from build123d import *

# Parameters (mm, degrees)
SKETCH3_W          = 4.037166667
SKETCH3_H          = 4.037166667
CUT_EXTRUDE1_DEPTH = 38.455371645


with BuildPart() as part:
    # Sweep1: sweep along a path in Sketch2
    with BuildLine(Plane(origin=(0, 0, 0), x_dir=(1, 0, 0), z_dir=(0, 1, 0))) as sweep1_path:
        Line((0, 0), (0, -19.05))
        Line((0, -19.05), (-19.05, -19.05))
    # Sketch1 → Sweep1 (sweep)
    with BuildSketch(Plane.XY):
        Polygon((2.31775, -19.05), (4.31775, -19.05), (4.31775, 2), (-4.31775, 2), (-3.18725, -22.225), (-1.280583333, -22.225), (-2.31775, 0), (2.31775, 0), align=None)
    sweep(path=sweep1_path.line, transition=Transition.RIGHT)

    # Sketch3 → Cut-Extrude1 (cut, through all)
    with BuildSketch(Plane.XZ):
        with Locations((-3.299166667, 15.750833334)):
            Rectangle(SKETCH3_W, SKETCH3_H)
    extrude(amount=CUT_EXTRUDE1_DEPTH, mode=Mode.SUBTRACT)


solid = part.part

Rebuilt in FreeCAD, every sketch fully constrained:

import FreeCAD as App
import Part
import Sketcher
from FreeCAD import Vector
Q = App.Units.Quantity


def add_polygon(sketch, points):
    """Adds a closed chain of lines whose ends are joined by coincident constraints."""
    first, n = sketch.GeometryCount, len(points)
    for a, b in zip(points, points[1:] + points[:1]):
        sketch.addGeometry(Part.LineSegment(App.Vector(*a, 0), App.Vector(*b, 0)), False)
    for i in range(n):
        sketch.addConstraint(Sketcher.Constraint("Coincident", first + i, 2, first + (i + 1) % n, 1))

doc = App.newDocument("Part")
body = doc.addObject("PartDesign::Body", "Body")

# Sketch on XY plane
sketch1 = body.newObject("Sketcher::SketchObject", "Sketch")
sketch1.AttachmentSupport = (doc.getObject("XY_Plane"), [""])
sketch1.MapMode = "FlatFace"
add_polygon(sketch1, [(2.31775, -19.05), (4.31775, -19.05), (4.31775, 2), (-4.31775, 2), (-3.18725, -22.225), (-1.280583, -22.225), (-2.31775, 0), (2.31775, 0)])  # lines 0-7
sketch1.addConstraint([
    Sketcher.Constraint("Horizontal", 0),
    Sketcher.Constraint("Vertical", 1),
    Sketcher.Constraint("Horizontal", 2),
    Sketcher.Constraint("Horizontal", 4),
    Sketcher.Constraint("Horizontal", 6),
    Sketcher.Constraint("Vertical", 7),
    Sketcher.Constraint("Symmetric", 5, 2, 6, 2, -1, 1),
    Sketcher.Constraint("Parallel", 3, 5),
    Sketcher.Constraint("DistanceX", 0, 1, 0, 2, Q("2 mm")),
    Sketcher.Constraint("DistanceY", -1, 1, 1, 2, Q("2 mm")),
    Sketcher.Constraint("DistanceX", 2, 2, 5, 2, Q("2 mm")),
    Sketcher.Constraint("DistanceY", 1, 1, 1, 2, Q("21.05 mm")),
    Sketcher.Constraint("DistanceX", 2, 2, 2, 1, Q("8.6355 mm")),
    Sketcher.Constraint("DistanceY", 3, 2, -1, 1, Q("22.225 mm")),
    Sketcher.Constraint("DistanceX", 3, 2, 0, 2, Q("7.505 mm")),
])

# Sketch on XZ plane
sketch2 = body.newObject("Sketcher::SketchObject", "Sketch001")
sketch2.AttachmentSupport = (doc.getObject("XZ_Plane"), [""])
sketch2.MapMode = "FlatFace"
sketch2.addGeometry([
    Part.LineSegment(Vector(0, 0, 0), Vector(0, 19.05, 0)),
    Part.LineSegment(Vector(0, 19.05, 0), Vector(-19.05, 19.05, 0)),
], False)
sketch2.addConstraint([
    Sketcher.Constraint("Coincident", 0, 2, 1, 1),
    Sketcher.Constraint("Vertical", 0),
    Sketcher.Constraint("Horizontal", 1),
    Sketcher.Constraint("Coincident", 0, 1, -1, 1),
    Sketcher.Constraint("Equal", 1, 0),
    Sketcher.Constraint("DistanceX", 1, 2, 1, 1, Q("19.05 mm")),
])
doc.recompute()

additivepipe = body.newObject("PartDesign::AdditivePipe", "AdditivePipe")
additivepipe.Profile = sketch1
additivepipe.Spine = (sketch2, ["Edge1", "Edge2"])
additivepipe.Transition = "Right corner"

# Sketch on XZ plane
sketch3 = body.newObject("Sketcher::SketchObject", "Sketch002")
sketch3.AttachmentSupport = (doc.getObject("XZ_Plane"), [""])
sketch3.MapMode = "FlatFace"
add_polygon(sketch3, [(-5.31775, 17.769417), (-5.31775, 13.73225), (-1.280583, 13.73225), (-1.280583, 17.769417)])  # lines 0-3
sketch3.addConstraint([
    Sketcher.Constraint("Vertical", 0),
    Sketcher.Constraint("Horizontal", 1),
    Sketcher.Constraint("Vertical", 2),
    Sketcher.Constraint("Horizontal", 3),
    Sketcher.Constraint("Equal", 3, 0),
    Sketcher.Constraint("DistanceX", 1, 1, 1, 2, Q("4.037167 mm")),
    Sketcher.Constraint("DistanceX", 0, 2, -1, 1, Q("5.31775 mm")),
    Sketcher.Constraint("DistanceY", -1, 1, 0, 2, Q("13.73225 mm")),
])
pocket1 = body.newObject("PartDesign::Pocket", "Pocket")
pocket1.Profile = sketch3
pocket1.Type = "ThroughAll"
pocket1.Reversed = True

doc.recompute()
